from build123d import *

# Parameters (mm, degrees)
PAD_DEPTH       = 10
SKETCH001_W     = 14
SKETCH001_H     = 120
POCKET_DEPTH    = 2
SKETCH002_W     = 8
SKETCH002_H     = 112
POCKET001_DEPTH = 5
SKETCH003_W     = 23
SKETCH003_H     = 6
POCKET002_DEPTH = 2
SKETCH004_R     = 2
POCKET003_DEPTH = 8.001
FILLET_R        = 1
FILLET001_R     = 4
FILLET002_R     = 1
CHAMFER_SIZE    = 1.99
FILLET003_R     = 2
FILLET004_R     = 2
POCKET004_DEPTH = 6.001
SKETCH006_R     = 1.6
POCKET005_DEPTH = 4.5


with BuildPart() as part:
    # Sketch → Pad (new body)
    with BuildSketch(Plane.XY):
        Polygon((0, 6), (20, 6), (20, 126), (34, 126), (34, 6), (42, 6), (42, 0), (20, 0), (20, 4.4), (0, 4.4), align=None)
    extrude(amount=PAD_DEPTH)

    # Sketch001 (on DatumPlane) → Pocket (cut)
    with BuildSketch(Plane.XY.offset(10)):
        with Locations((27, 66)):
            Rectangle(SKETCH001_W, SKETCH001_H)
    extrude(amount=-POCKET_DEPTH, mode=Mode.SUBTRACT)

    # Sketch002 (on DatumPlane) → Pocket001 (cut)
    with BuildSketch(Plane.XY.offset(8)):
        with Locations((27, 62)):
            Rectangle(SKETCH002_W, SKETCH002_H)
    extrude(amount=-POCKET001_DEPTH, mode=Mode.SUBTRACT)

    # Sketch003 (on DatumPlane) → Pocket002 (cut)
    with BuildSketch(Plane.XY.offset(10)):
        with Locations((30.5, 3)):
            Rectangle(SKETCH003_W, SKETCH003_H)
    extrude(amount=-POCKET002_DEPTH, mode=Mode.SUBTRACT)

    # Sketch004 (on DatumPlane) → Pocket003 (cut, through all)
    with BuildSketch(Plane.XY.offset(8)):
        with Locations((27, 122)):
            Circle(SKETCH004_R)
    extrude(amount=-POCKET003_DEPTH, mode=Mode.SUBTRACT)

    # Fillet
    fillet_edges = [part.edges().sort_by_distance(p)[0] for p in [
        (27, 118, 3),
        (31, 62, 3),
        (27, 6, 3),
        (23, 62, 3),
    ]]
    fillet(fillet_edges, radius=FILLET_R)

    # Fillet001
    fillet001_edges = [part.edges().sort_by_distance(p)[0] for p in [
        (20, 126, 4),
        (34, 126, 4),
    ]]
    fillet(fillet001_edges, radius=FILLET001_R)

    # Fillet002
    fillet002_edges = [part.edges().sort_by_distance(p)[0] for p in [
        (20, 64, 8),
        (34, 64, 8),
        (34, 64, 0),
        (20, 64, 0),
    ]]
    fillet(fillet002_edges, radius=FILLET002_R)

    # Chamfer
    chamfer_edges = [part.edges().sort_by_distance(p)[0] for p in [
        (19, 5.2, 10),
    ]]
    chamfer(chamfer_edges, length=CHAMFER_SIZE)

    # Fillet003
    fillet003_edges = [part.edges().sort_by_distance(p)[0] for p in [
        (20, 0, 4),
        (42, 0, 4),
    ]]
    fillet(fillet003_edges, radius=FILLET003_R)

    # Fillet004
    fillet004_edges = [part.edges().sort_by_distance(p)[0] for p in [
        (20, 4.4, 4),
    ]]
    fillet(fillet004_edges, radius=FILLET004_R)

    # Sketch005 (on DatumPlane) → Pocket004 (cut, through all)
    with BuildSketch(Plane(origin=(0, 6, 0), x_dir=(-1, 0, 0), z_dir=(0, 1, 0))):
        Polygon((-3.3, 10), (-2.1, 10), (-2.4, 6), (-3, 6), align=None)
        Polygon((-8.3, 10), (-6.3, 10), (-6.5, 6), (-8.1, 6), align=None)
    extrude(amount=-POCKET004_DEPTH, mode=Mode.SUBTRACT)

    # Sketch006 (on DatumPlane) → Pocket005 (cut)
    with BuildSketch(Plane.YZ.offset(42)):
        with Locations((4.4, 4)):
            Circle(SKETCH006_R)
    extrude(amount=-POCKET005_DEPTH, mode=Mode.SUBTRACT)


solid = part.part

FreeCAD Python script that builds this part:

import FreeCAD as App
import Part
import Sketcher
Q = App.Units.Quantity


def edges_at(feature, points):
    """Names of the edges that pass closest to the given points."""
    edges = feature.Shape.Edges
    near = lambda p: min(range(len(edges)), key=lambda i: edges[i].distToShape(Part.Vertex(*p))[0])
    return sorted({f"Edge{near(p) + 1}" for p in points})

doc = App.newDocument("Part")
body = doc.addObject("PartDesign::Body", "Body")

# Sketch on XY plane
sketch1 = body.newObject("Sketcher::SketchObject", "Sketch")
sketch1.AttachmentSupport = (doc.getObject("XY_Plane"), [""])
sketch1.MapMode = "FlatFace"
sketch1.addGeometry([
    Part.LineSegment(App.Vector(20, 6, 0), App.Vector(0, 6, 0)),  # 0
    Part.LineSegment(App.Vector(0, 6, 0), App.Vector(0, 4.4, 0)),  # 1
    Part.LineSegment(App.Vector(0, 4.4, 0), App.Vector(20, 4.4, 0)),  # 2
    Part.LineSegment(App.Vector(20, 4.4, 0), App.Vector(20, 0, 0)),  # 3
    Part.LineSegment(App.Vector(20, 0, 0), App.Vector(42, 0, 0)),  # 4
    Part.LineSegment(App.Vector(42, 0, 0), App.Vector(42, 6, 0)),  # 5
    Part.LineSegment(App.Vector(42, 6, 0), App.Vector(34, 6, 0)),  # 6
    Part.LineSegment(App.Vector(34, 6, 0), App.Vector(34, 126, 0)),  # 7
    Part.LineSegment(App.Vector(34, 126, 0), App.Vector(20, 126, 0)),  # 8
    Part.LineSegment(App.Vector(20, 126, 0), App.Vector(20, 6, 0)),  # 9
], False)
sketch1.addConstraint([
    Sketcher.Constraint("Coincident", 0, 2, 1, 1),
    Sketcher.Constraint("Coincident", 1, 2, 2, 1),
    Sketcher.Constraint("Coincident", 2, 2, 3, 1),
    Sketcher.Constraint("Coincident", 3, 2, 4, 1),
    Sketcher.Constraint("Coincident", 4, 2, 5, 1),
    Sketcher.Constraint("Coincident", 5, 2, 6, 1),
    Sketcher.Constraint("Coincident", 6, 2, 7, 1),
    Sketcher.Constraint("Coincident", 7, 2, 8, 1),
    Sketcher.Constraint("Coincident", 8, 2, 9, 1),
    Sketcher.Constraint("Coincident", 9, 2, 0, 1),
    Sketcher.Constraint("Horizontal", 0),
    Sketcher.Constraint("Vertical", 1),
    Sketcher.Constraint("Horizontal", 2),
    Sketcher.Constraint("Vertical", 3),
    Sketcher.Constraint("Horizontal", 4),
    Sketcher.Constraint("Vertical", 5),
    Sketcher.Constraint("Horizontal", 6),
    Sketcher.Constraint("Vertical", 7),
    Sketcher.Constraint("Horizontal", 8),
    Sketcher.Constraint("Vertical", 9),
    Sketcher.Constraint("PointOnObject", 0, 2, -2),
    Sketcher.Constraint("PointOnObject", 3, 2, -1),
    Sketcher.Constraint("Horizontal", 0, 2, 5, 2),
    Sketcher.Constraint("Vertical", 3, 2, 8, 2),
    Sketcher.Constraint("DistanceX", 0, 2, 0, 1, Q("20 mm")),
    Sketcher.Constraint("DistanceX", 4, 1, 4, 2, Q("22 mm")),
    Sketcher.Constraint("DistanceX", 6, 2, 6, 1, Q("8 mm")),
    Sketcher.Constraint("DistanceY", 5, 1, 5, 2, Q("6 mm")),
    Sketcher.Constraint("DistanceY", 7, 1, 7, 2, Q("120 mm")),
    Sketcher.Constraint("DistanceY", 1, 2, 1, 1, Q("1.6 mm")),
])
pad1 = body.newObject("PartDesign::Pad", "Pad")
pad1.Profile = sketch1
pad1.Length = 10

# Sketch on XY plane
sketch2 = body.newObject("Sketcher::SketchObject", "Sketch001")
sketch2.AttachmentSupport = (doc.getObject("XY_Plane"), [""])
sketch2.MapMode = "FlatFace"
sketch2.AttachmentOffset = App.Placement(App.Vector(0, 0, 10), App.Rotation())
sketch2.addGeometry([
    Part.LineSegment(App.Vector(20, 126, 0), App.Vector(20, 6, 0)),
    Part.LineSegment(App.Vector(20, 6, 0), App.Vector(34, 6, 0)),
    Part.LineSegment(App.Vector(34, 6, 0), App.Vector(34, 126, 0)),
    Part.LineSegment(App.Vector(34, 126, 0), App.Vector(20, 126, 0)),
], False)
sketch2.addConstraint([
    Sketcher.Constraint("Coincident", 0, 2, 1, 1),
    Sketcher.Constraint("Coincident", 1, 2, 2, 1),
    Sketcher.Constraint("Coincident", 2, 2, 3, 1),
    Sketcher.Constraint("Coincident", 3, 2, 0, 1),
    Sketcher.Constraint("Vertical", 0),
    Sketcher.Constraint("Horizontal", 1),
    Sketcher.Constraint("Vertical", 2),
    Sketcher.Constraint("Horizontal", 3),
    Sketcher.Constraint("DistanceX", 1, 1, 1, 2, Q("14 mm")),
    Sketcher.Constraint("DistanceY", 0, 2, 0, 1, Q("120 mm")),
    Sketcher.Constraint("DistanceX", -1, 1, 0, 2, Q("20 mm")),
    Sketcher.Constraint("DistanceY", -1, 1, 0, 2, Q("6 mm")),
])
pocket1 = body.newObject("PartDesign::Pocket", "Pocket")
pocket1.Profile = sketch2
pocket1.Length = 2

# Sketch on XY plane
sketch3 = body.newObject("Sketcher::SketchObject", "Sketch002")
sketch3.AttachmentSupport = (doc.getObject("XY_Plane"), [""])
sketch3.MapMode = "FlatFace"
sketch3.AttachmentOffset = App.Placement(App.Vector(0, 0, 8), App.Rotation())
sketch3.addGeometry([
    Part.LineSegment(App.Vector(23, 118, 0), App.Vector(23, 6, 0)),
    Part.LineSegment(App.Vector(23, 6, 0), App.Vector(31, 6, 0)),
    Part.LineSegment(App.Vector(31, 6, 0), App.Vector(31, 118, 0)),
    Part.LineSegment(App.Vector(31, 118, 0), App.Vector(23, 118, 0)),
], False)
sketch3.addConstraint([
    Sketcher.Constraint("Coincident", 0, 2, 1, 1),
    Sketcher.Constraint("Coincident", 1, 2, 2, 1),
    Sketcher.Constraint("Coincident", 2, 2, 3, 1),
    Sketcher.Constraint("Coincident", 3, 2, 0, 1),
    Sketcher.Constraint("Vertical", 0),
    Sketcher.Constraint("Horizontal", 1),
    Sketcher.Constraint("Vertical", 2),
    Sketcher.Constraint("Horizontal", 3),
    Sketcher.Constraint("DistanceX", 1, 1, 1, 2, Q("8 mm")),
    Sketcher.Constraint("DistanceY", 0, 2, 0, 1, Q("112 mm")),
    Sketcher.Constraint("DistanceX", -1, 1, 0, 2, Q("23 mm")),
    Sketcher.Constraint("DistanceY", -1, 1, 0, 2, Q("6 mm")),
])
pocket2 = body.newObject("PartDesign::Pocket", "Pocket001")
pocket2.Profile = sketch3
pocket2.Length = 5

# Sketch on XY plane
sketch4 = body.newObject("Sketcher::SketchObject", "Sketch003")
sketch4.AttachmentSupport = (doc.getObject("XY_Plane"), [""])
sketch4.MapMode = "FlatFace"
sketch4.AttachmentOffset = App.Placement(App.Vector(0, 0, 10), App.Rotation())
sketch4.addGeometry([
    Part.LineSegment(App.Vector(19, 6, 0), App.Vector(19, 0, 0)),
    Part.LineSegment(App.Vector(19, 0, 0), App.Vector(42, 0, 0)),
    Part.LineSegment(App.Vector(42, 0, 0), App.Vector(42, 6, 0)),
    Part.LineSegment(App.Vector(42, 6, 0), App.Vector(19, 6, 0)),
], False)
sketch4.addConstraint([
    Sketcher.Constraint("Coincident", 0, 2, 1, 1),
    Sketcher.Constraint("Coincident", 1, 2, 2, 1),
    Sketcher.Constraint("Coincident", 2, 2, 3, 1),
    Sketcher.Constraint("Coincident", 3, 2, 0, 1),
    Sketcher.Constraint("Vertical", 0),
    Sketcher.Constraint("Horizontal", 1),
    Sketcher.Constraint("Vertical", 2),
    Sketcher.Constraint("Horizontal", 3),
    Sketcher.Constraint("PointOnObject", 0, 2, -1),
    Sketcher.Constraint("DistanceX", 1, 1, 1, 2, Q("23 mm")),
    Sketcher.Constraint("DistanceY", 0, 2, 0, 1, Q("6 mm")),
    Sketcher.Constraint("DistanceX", -1, 1, 0, 2, Q("19 mm")),
])
pocket3 = body.newObject("PartDesign::Pocket", "Pocket002")
pocket3.Profile = sketch4
pocket3.Length = 2

# Sketch on XY plane
sketch5 = body.newObject("Sketcher::SketchObject", "Sketch004")
sketch5.AttachmentSupport = (doc.getObject("XY_Plane"), [""])
sketch5.MapMode = "FlatFace"
sketch5.AttachmentOffset = App.Placement(App.Vector(0, 0, 8), App.Rotation())
sketch5.addGeometry(Part.Circle(App.Vector(27, 122, 0), App.Vector(0, 0, 1), 2), False)
sketch5.addConstraint([
    Sketcher.Constraint("Diameter", 0, Q("4 mm")),
    Sketcher.Constraint("DistanceX", -1, 1, 0, 3, Q("27 mm")),
    Sketcher.Constraint("DistanceY", -1, 1, 0, 3, Q("122 mm")),
])
pocket4 = body.newObject("PartDesign::Pocket", "Pocket003")
pocket4.Profile = sketch5
pocket4.Type = "ThroughAll"
doc.recompute()

fillet = body.newObject("PartDesign::Fillet", "Fillet")
fillet.Base = (pocket4, edges_at(pocket4, [
    (27, 118, 3),
    (31, 62, 3),
    (27, 6, 3),
    (23, 62, 3),
]))
fillet.Radius = 1
doc.recompute()

fillet2 = body.newObject("PartDesign::Fillet", "Fillet001")
fillet2.Base = (fillet, edges_at(fillet, [(20, 126, 4), (34, 126, 4)]))
fillet2.Radius = 4
doc.recompute()

fillet3 = body.newObject("PartDesign::Fillet", "Fillet002")
fillet3.Base = (fillet2, edges_at(fillet2, [
    (20, 64, 8),
    (34, 64, 8),
    (34, 64, 0),
    (20, 64, 0),
]))
fillet3.Radius = 1
doc.recompute()

chamfer = body.newObject("PartDesign::Chamfer", "Chamfer")
chamfer.Base = (fillet3, edges_at(fillet3, [(19, 5.2, 10)]))
chamfer.Size = 1.99
doc.recompute()

fillet4 = body.newObject("PartDesign::Fillet", "Fillet003")
fillet4.Base = (chamfer, edges_at(chamfer, [(20, 0, 4), (42, 0, 4)]))
fillet4.Radius = 2
doc.recompute()

fillet5 = body.newObject("PartDesign::Fillet", "Fillet004")
fillet5.Base = (fillet4, edges_at(fillet4, [(20, 4.4, 4)]))
fillet5.Radius = 2

# Sketch on XZ plane
sketch6 = body.newObject("Sketcher::SketchObject", "Sketch005")
sketch6.AttachmentSupport = (doc.getObject("XZ_Plane"), [""])
sketch6.MapMode = "FlatFace"
sketch6.AttachmentOffset = App.Placement(App.Vector(0, 0, -6), App.Rotation())
sketch6.addGeometry([
    Part.LineSegment(App.Vector(2.1, 10, 0), App.Vector(3.3, 10, 0)),  # 0
    Part.LineSegment(App.Vector(3.3, 10, 0), App.Vector(3, 6, 0)),  # 1
    Part.LineSegment(App.Vector(3, 6, 0), App.Vector(2.4, 6, 0)),  # 2
    Part.LineSegment(App.Vector(2.4, 6, 0), App.Vector(2.1, 10, 0)),  # 3
    Part.LineSegment(App.Vector(6.3, 10, 0), App.Vector(8.3, 10, 0)),  # 4
    Part.LineSegment(App.Vector(8.3, 10, 0), App.Vector(8.1, 6, 0)),  # 5
    Part.LineSegment(App.Vector(8.1, 6, 0), App.Vector(6.5, 6, 0)),  # 6
    Part.LineSegment(App.Vector(6.5, 6, 0), App.Vector(6.3, 10, 0)),  # 7
], False)
sketch6.addConstraint([
    Sketcher.Constraint("Coincident", 0, 2, 1, 1),
    Sketcher.Constraint("Coincident", 1, 2, 2, 1),
    Sketcher.Constraint("Coincident", 2, 2, 3, 1),
    Sketcher.Constraint("Coincident", 3, 2, 0, 1),
    Sketcher.Constraint("Coincident", 4, 2, 5, 1),
    Sketcher.Constraint("Coincident", 5, 2, 6, 1),
    Sketcher.Constraint("Coincident", 6, 2, 7, 1),
    Sketcher.Constraint("Coincident", 7, 2, 4, 1),
    Sketcher.Constraint("Horizontal", 0),
    Sketcher.Constraint("Horizontal", 2),
    Sketcher.Constraint("Horizontal", 4),
    Sketcher.Constraint("Horizontal", 6),
    Sketcher.Constraint("Horizontal", 3, 2, 4, 2),
    Sketcher.Constraint("Horizontal", 2, 2, 5, 2),
    Sketcher.Constraint("Equal", 1, 3),
    Sketcher.Constraint("Equal", 5, 7),
    Sketcher.Constraint("DistanceX", 4, 1, 4, 2, Q("2 mm")),
    Sketcher.Constraint("DistanceX", 0, 1, 0, 2, Q("1.2 mm")),
    Sketcher.Constraint("DistanceX", 2, 2, 2, 1, Q("0.6 mm")),
    Sketcher.Constraint("DistanceX", 6, 2, 6, 1, Q("1.6 mm")),
    Sketcher.Constraint("DistanceY", -1, 1, 0, 2, Q("10 mm")),
    Sketcher.Constraint("DistanceX", -1, 1, 1, 2, Q("3 mm")),
    Sketcher.Constraint("DistanceY", -1, 1, 1, 2, Q("6 mm")),
    Sketcher.Constraint("DistanceX", 0, 2, 4, 2, Q("5 mm")),
])
pocket5 = body.newObject("PartDesign::Pocket", "Pocket004")
pocket5.Profile = sketch6
pocket5.Type = "ThroughAll"
pocket5.Reversed = True

# Sketch on YZ plane
sketch7 = body.newObject("Sketcher::SketchObject", "Sketch006")
sketch7.AttachmentSupport = (doc.getObject("YZ_Plane"), [""])
sketch7.MapMode = "FlatFace"
sketch7.AttachmentOffset = App.Placement(App.Vector(0, 0, 42), App.Rotation())
sketch7.addGeometry(Part.Circle(App.Vector(4.4, 4, 0), App.Vector(0, 0, 1), 1.6), False)
sketch7.addConstraint([
    Sketcher.Constraint("Diameter", 0, Q("3.2 mm")),
    Sketcher.Constraint("DistanceY", -1, 1, 0, 3, Q("4 mm")),
    Sketcher.Constraint("DistanceX", -1, 1, 0, 3, Q("4.4 mm")),
])
pocket6 = body.newObject("PartDesign::Pocket", "Pocket005")
pocket6.Profile = sketch7
pocket6.Length = 4.5

doc.recompute()
